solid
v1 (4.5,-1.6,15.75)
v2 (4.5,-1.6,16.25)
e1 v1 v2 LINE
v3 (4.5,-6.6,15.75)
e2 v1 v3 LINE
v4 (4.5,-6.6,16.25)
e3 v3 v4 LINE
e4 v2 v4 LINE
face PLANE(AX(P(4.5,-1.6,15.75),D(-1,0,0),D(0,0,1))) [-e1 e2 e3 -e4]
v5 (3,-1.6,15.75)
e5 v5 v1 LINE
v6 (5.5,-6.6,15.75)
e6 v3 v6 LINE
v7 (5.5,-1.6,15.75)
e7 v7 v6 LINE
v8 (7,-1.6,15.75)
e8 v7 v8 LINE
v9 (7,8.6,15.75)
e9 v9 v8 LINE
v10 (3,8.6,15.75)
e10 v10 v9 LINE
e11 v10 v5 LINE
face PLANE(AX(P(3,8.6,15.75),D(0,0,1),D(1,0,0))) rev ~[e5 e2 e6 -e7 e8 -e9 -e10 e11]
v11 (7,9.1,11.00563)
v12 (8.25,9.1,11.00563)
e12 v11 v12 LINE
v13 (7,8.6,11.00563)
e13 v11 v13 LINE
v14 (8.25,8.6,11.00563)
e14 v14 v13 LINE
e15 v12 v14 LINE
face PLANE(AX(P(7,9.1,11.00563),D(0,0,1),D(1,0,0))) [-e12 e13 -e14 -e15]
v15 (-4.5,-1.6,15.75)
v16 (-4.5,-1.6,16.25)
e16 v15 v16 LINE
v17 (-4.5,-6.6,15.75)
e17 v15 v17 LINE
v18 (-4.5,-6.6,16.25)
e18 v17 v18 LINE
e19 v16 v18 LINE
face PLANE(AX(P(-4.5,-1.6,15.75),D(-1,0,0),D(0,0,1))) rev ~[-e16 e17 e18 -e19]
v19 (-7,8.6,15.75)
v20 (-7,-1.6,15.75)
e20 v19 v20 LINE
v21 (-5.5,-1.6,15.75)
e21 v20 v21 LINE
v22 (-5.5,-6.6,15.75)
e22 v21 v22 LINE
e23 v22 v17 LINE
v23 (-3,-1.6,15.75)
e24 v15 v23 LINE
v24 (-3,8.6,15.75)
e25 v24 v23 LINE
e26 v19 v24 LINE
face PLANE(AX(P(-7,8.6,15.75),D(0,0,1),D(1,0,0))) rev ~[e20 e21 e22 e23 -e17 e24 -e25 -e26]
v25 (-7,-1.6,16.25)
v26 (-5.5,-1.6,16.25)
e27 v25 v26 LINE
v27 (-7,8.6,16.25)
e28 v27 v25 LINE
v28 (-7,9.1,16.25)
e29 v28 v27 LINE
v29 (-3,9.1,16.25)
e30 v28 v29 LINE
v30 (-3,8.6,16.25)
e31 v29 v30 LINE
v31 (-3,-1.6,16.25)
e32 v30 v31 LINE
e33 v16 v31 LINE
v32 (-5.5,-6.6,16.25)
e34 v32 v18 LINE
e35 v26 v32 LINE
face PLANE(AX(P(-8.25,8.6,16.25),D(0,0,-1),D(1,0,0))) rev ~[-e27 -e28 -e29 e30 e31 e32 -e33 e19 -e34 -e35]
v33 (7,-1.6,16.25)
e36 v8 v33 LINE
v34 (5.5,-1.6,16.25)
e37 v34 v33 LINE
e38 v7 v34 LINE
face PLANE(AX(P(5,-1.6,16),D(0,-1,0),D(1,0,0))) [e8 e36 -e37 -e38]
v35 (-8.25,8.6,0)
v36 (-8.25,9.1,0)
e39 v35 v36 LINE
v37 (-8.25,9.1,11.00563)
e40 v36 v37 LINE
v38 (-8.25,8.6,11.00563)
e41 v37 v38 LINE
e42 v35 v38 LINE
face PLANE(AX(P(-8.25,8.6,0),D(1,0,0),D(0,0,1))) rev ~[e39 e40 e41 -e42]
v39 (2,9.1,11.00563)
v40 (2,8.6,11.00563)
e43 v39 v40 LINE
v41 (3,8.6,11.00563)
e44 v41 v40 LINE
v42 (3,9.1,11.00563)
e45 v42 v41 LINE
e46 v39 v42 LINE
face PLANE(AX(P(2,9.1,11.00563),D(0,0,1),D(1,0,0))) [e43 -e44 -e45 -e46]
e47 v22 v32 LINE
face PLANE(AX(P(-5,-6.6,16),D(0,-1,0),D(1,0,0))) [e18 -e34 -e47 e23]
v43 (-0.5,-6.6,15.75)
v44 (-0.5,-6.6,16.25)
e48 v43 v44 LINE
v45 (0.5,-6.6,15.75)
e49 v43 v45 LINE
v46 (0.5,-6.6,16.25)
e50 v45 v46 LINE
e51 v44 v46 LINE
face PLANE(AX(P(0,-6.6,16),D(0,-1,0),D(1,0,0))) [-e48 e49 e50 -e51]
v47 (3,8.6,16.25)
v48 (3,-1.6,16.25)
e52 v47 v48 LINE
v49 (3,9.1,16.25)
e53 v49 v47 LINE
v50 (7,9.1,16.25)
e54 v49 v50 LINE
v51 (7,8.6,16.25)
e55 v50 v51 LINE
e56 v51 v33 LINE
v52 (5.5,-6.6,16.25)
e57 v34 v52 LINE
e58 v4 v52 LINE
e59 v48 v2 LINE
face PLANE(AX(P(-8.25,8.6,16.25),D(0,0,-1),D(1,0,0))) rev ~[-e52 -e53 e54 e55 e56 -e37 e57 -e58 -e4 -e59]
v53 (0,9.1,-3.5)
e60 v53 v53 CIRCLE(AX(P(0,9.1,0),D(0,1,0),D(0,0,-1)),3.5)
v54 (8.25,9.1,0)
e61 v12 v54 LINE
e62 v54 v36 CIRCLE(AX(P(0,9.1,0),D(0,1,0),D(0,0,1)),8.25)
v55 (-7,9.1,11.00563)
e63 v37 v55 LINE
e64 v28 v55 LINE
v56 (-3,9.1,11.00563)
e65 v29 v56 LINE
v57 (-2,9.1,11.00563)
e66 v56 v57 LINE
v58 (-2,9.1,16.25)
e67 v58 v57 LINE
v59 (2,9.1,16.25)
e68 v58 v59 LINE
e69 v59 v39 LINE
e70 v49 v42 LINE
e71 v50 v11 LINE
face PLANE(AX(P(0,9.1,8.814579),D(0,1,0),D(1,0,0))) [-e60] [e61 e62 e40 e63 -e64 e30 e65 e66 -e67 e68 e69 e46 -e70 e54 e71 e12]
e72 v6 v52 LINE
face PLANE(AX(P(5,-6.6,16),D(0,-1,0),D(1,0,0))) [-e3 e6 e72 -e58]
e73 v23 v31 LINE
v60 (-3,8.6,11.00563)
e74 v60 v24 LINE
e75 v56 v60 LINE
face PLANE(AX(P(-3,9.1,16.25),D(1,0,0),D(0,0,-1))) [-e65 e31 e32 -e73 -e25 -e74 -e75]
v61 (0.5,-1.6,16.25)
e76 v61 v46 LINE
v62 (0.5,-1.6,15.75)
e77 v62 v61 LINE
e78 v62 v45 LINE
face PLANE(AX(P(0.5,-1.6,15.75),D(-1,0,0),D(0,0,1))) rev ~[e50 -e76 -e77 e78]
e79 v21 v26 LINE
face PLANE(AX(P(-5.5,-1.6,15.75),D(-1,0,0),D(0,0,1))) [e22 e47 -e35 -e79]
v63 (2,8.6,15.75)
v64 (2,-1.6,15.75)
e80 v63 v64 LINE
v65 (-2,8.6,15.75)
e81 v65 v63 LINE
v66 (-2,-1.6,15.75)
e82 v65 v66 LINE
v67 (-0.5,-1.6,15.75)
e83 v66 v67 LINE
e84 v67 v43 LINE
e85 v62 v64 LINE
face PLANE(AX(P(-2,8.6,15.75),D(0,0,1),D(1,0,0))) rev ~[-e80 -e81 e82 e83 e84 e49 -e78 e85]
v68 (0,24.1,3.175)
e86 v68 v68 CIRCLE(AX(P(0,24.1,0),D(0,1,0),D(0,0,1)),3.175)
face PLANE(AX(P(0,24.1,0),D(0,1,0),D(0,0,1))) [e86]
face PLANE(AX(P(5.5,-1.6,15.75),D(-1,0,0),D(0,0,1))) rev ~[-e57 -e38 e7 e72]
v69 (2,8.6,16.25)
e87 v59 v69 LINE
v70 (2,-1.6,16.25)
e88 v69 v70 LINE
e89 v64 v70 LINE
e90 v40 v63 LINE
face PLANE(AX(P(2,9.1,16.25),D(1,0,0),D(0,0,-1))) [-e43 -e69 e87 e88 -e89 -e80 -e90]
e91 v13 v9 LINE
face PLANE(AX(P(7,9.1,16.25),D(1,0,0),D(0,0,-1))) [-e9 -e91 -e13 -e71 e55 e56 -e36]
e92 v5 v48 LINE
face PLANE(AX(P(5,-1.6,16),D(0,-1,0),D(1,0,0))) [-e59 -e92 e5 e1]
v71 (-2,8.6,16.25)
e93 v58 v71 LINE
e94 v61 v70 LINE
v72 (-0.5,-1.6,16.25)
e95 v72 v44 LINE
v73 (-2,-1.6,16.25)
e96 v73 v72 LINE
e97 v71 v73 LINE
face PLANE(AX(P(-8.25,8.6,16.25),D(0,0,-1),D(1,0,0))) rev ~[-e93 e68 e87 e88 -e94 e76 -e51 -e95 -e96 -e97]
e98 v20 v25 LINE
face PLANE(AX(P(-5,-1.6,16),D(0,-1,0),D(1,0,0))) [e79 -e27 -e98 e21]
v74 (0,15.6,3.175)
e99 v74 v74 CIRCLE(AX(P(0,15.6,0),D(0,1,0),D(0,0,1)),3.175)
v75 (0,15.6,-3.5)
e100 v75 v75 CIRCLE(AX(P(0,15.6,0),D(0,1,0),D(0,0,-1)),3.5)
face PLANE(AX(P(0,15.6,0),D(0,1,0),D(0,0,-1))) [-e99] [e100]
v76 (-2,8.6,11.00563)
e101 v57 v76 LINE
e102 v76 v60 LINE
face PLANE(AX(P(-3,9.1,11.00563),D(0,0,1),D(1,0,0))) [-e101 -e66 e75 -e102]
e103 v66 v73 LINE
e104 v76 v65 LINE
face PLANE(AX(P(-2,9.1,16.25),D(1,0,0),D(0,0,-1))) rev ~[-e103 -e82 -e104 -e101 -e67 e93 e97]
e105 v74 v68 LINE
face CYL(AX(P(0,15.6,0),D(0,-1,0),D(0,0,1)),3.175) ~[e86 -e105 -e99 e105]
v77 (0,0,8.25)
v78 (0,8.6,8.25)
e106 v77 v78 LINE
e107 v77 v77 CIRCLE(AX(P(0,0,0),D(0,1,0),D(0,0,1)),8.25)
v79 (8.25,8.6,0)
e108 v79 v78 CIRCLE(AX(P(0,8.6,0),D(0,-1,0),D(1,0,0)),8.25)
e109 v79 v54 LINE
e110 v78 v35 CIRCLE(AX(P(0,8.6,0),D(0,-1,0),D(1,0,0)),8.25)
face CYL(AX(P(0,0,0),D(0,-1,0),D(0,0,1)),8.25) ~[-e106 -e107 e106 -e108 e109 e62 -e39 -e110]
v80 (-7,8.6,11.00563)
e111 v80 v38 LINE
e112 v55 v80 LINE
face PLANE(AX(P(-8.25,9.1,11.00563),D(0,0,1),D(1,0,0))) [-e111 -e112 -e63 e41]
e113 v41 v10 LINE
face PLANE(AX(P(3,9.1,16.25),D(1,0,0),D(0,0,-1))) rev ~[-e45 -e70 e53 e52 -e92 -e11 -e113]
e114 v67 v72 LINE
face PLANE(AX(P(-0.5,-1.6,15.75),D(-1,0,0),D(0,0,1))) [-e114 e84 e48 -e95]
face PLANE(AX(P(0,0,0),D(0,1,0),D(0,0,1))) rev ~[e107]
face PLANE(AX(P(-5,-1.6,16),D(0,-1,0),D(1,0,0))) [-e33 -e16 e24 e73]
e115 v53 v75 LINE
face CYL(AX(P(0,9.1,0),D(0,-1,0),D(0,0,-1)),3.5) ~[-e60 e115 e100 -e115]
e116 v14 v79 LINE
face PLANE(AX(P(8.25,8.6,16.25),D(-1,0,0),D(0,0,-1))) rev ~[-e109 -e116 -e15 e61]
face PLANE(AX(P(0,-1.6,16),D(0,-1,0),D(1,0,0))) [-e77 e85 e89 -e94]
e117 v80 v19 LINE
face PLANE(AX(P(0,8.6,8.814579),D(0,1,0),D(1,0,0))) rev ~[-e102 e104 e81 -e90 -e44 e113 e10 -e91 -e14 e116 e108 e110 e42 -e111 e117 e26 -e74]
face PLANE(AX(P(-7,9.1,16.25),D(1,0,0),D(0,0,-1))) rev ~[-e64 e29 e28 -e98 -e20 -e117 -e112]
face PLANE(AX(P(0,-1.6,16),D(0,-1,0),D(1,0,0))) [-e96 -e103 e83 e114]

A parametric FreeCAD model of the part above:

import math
import FreeCAD as App
import Part
import Sketcher

doc = App.newDocument("Part")
params = doc.addObject("Spreadsheet::Sheet", "Params")
for row, (alias, value) in enumerate([
    ("sketch1_diameter", "16.5 mm"),
    ("pad1_length", "9.1 mm"),
    ("sketch2_diameter", "7 mm"),
    ("pad2_length", "6.5 mm"),
    ("sketch3_diameter", "6.35 mm"),
    ("pad3_length", "8.5 mm"),
    ("sketch4_radius", "8.25 mm"),
    ("sketch4_height", "16.25 mm"),
    ("pad4_length", "0.5 mm"),
    ("sketch5_width", "4 mm"),
    ("sketch5_height", "0.5 mm"),
    ("pad5_length", "10.2 mm"),
    ("sketch6_width", "1 mm"),
    ("sketch6_height", "0.5 mm"),
    ("pad6_length", "5 mm"),
    ("sketch7_width", "1.25 mm"),
    ("sketch8_width", "1.25 mm"),
    ("sketch9_width", "1 mm"),
    ("sketch10_width", "1 mm"),
], start=1):
    params.set(f"A{row}", alias)
    params.set(f"B{row}", "=" + value)
    params.setAlias(f"B{row}", alias)

body = doc.addObject("PartDesign::Body", "Body")

sketch1 = doc.addObject("Sketcher::SketchObject", "Sketch")
body.addObject(sketch1)
sketch1.AttachmentSupport = (doc.XZ_Plane, [""])
sketch1.MapMode = "FlatFace"
sketch1.addGeometry(Part.Circle(App.Vector(0, 0, 0), App.Vector(0, 0, 1), 8.25), False)
sketch1.addConstraint([
    Sketcher.Constraint("Coincident", 0, 3, -1, 1),
    Sketcher.Constraint("Diameter", 0, 16.5),
])
sketch1.setExpression("Constraints[1]", "Params.sketch1_diameter")
pad1 = doc.addObject("PartDesign::Pad", "Pad")
body.addObject(pad1)
pad1.Profile = sketch1
pad1.setExpression("Length", "Params.pad1_length")
pad1.Reversed = True

sketch2 = doc.addObject("Sketcher::SketchObject", "Sketch001")
body.addObject(sketch2)
sketch2.AttachmentSupport = (doc.XZ_Plane, [""])
sketch2.MapMode = "FlatFace"
sketch2.AttachmentOffset = App.Placement(App.Vector(0, 0, -9.1), App.Rotation())
sketch2.addGeometry(Part.Circle(App.Vector(0, 0, 0), App.Vector(0, 0, 1), 3.5), False)
sketch2.addConstraint([
    Sketcher.Constraint("Coincident", 0, 3, -1, 1),
    Sketcher.Constraint("Diameter", 0, 7.0),
])
sketch2.setExpression("Constraints[1]", "Params.sketch2_diameter")
pad2 = doc.addObject("PartDesign::Pad", "Pad001")
body.addObject(pad2)
pad2.Profile = sketch2
pad2.setExpression("Length", "Params.pad2_length")
pad2.Reversed = True

sketch3 = doc.addObject("Sketcher::SketchObject", "Sketch002")
body.addObject(sketch3)
sketch3.AttachmentSupport = (doc.XZ_Plane, [""])
sketch3.MapMode = "FlatFace"
sketch3.AttachmentOffset = App.Placement(App.Vector(0, 0, -15.6), App.Rotation())
sketch3.addGeometry(Part.Circle(App.Vector(0, 0, 0), App.Vector(0, 0, 1), 3.175), False)
sketch3.addConstraint([
    Sketcher.Constraint("Coincident", 0, 3, -1, 1),
    Sketcher.Constraint("Diameter", 0, 6.35),
])
sketch3.setExpression("Constraints[1]", "Params.sketch3_diameter")
pad3 = doc.addObject("PartDesign::Pad", "Pad002")
body.addObject(pad3)
pad3.Profile = sketch3
pad3.setExpression("Length", "Params.pad3_length")
pad3.Reversed = True

sketch4 = doc.addObject("Sketcher::SketchObject", "Sketch003")
body.addObject(sketch4)
sketch4.AttachmentSupport = (doc.XZ_Plane, [""])
sketch4.MapMode = "FlatFace"
sketch4.AttachmentOffset = App.Placement(App.Vector(0, 0, -8.6), App.Rotation())
sketch4.addGeometry([
    Part.LineSegment(App.Vector(-8.25, 0, 0), App.Vector(-8.25, 16.25, 0)),
    Part.LineSegment(App.Vector(-8.25, 16.25, 0), App.Vector(8.25, 16.25, 0)),
    Part.LineSegment(App.Vector(8.25, 16.25, 0), App.Vector(8.25, 0, 0)),
    Part.ArcOfCircle(Part.Circle(App.Vector(0, 0, 0), App.Vector(0, 0, 1), 8.25), math.radians(0), math.radians(180)),
], False)
sketch4.addConstraint([
    Sketcher.Constraint("Coincident", 0, 2, 1, 1),
    Sketcher.Constraint("Coincident", 1, 2, 2, 1),
    Sketcher.Constraint("Tangent", 2, 2, 3, 1),
    Sketcher.Constraint("Tangent", 3, 2, 0, 1),
    Sketcher.Constraint("Vertical", 0),
    Sketcher.Constraint("Horizontal", 1),
    Sketcher.Constraint("Vertical", 2),
    Sketcher.Constraint("Coincident", 3, 3, -1, 1),
    Sketcher.Constraint("Radius", 3, 8.25),
    Sketcher.Constraint("DistanceY", 0, 1, 0, 2, 16.25),
])
sketch4.setExpression("Constraints[8]", "Params.sketch4_radius")
sketch4.setExpression("Constraints[9]", "Params.sketch4_height")
pad4 = doc.addObject("PartDesign::Pad", "Pad003")
body.addObject(pad4)
pad4.Profile = sketch4
pad4.setExpression("Length", "Params.pad4_length")
pad4.Reversed = True

sketch5 = doc.addObject("Sketcher::SketchObject", "Sketch004")
body.addObject(sketch5)
sketch5.AttachmentSupport = (doc.XZ_Plane, [""])
sketch5.MapMode = "FlatFace"
sketch5.AttachmentOffset = App.Placement(App.Vector(0, 0, -8.6), App.Rotation())
sketch5.addGeometry([
    Part.LineSegment(App.Vector(-2, 16.25, 0), App.Vector(-2, 15.75, 0)),
    Part.LineSegment(App.Vector(-2, 15.75, 0), App.Vector(2, 15.75, 0)),
    Part.LineSegment(App.Vector(2, 15.75, 0), App.Vector(2, 16.25, 0)),
    Part.LineSegment(App.Vector(2, 16.25, 0), App.Vector(-2, 16.25, 0)),
    Part.LineSegment(App.Vector(-7, 16.25, 0), App.Vector(-7, 15.75, 0)),
    Part.LineSegment(App.Vector(-7, 15.75, 0), App.Vector(-3, 15.75, 0)),
    Part.LineSegment(App.Vector(-3, 15.75, 0), App.Vector(-3, 16.25, 0)),
    Part.LineSegment(App.Vector(-3, 16.25, 0), App.Vector(-7, 16.25, 0)),
    Part.LineSegment(App.Vector(3, 16.25, 0), App.Vector(3, 15.75, 0)),
    Part.LineSegment(App.Vector(3, 15.75, 0), App.Vector(7, 15.75, 0)),
    Part.LineSegment(App.Vector(7, 15.75, 0), App.Vector(7, 16.25, 0)),
    Part.LineSegment(App.Vector(7, 16.25, 0), App.Vector(3, 16.25, 0)),
], False)
sketch5.addConstraint([
    Sketcher.Constraint("Coincident", 0, 2, 1, 1),
    Sketcher.Constraint("Coincident", 1, 2, 2, 1),
    Sketcher.Constraint("Coincident", 2, 2, 3, 1),
    Sketcher.Constraint("Coincident", 3, 2, 0, 1),
    Sketcher.Constraint("Coincident", 4, 2, 5, 1),
    Sketcher.Constraint("Coincident", 5, 2, 6, 1),
    Sketcher.Constraint("Coincident", 6, 2, 7, 1),
    Sketcher.Constraint("Coincident", 7, 2, 4, 1),
    Sketcher.Constraint("Coincident", 8, 2, 9, 1),
    Sketcher.Constraint("Coincident", 9, 2, 10, 1),
    Sketcher.Constraint("Coincident", 10, 2, 11, 1),
    Sketcher.Constraint("Coincident", 11, 2, 8, 1),
    Sketcher.Constraint("Vertical", 0),
    Sketcher.Constraint("Horizontal", 1),
    Sketcher.Constraint("Vertical", 2),
    Sketcher.Constraint("Horizontal", 3),
    Sketcher.Constraint("Vertical", 4),
    Sketcher.Constraint("Horizontal", 5),
    Sketcher.Constraint("Vertical", 6),
    Sketcher.Constraint("Horizontal", 7),
    Sketcher.Constraint("Vertical", 8),
    Sketcher.Constraint("Horizontal", 9),
    Sketcher.Constraint("Vertical", 10),
    Sketcher.Constraint("Horizontal", 11),
    Sketcher.Constraint("Symmetric", 5, 2, 8, 2, -2),
    Sketcher.Constraint("Symmetric", 7, 2, 10, 2, -2),
    Sketcher.Constraint("Horizontal", 1, 2, 4, 2),
    Sketcher.Constraint("Horizontal", 3, 2, 6, 2),
    Sketcher.Constraint("Equal", 3, 5),
    Sketcher.Constraint("DistanceX", 1, 1, 1, 2, 4.0),
    Sketcher.Constraint("DistanceY", 0, 2, 0, 1, 0.5),
    Sketcher.Constraint("DistanceX", 0, 2, -1, 1, 2.0),
    Sketcher.Constraint("DistanceX", 4, 2, -1, 1, 7.0),
    Sketcher.Constraint("DistanceY", -1, 1, 0, 2, 15.75),
])
sketch5.setExpression("Constraints[29]", "Params.sketch5_width")
sketch5.setExpression("Constraints[30]", "Params.sketch5_height")
pad5 = doc.addObject("PartDesign::Pad", "Pad004")
body.addObject(pad5)
pad5.Profile = sketch5
pad5.setExpression("Length", "Params.pad5_length")

sketch6 = doc.addObject("Sketcher::SketchObject", "Sketch005")
body.addObject(sketch6)
sketch6.AttachmentSupport = (doc.XZ_Plane, [""])
sketch6.MapMode = "FlatFace"
sketch6.AttachmentOffset = App.Placement(App.Vector(0, 0, 1.6), App.Rotation())
sketch6.addGeometry([
    Part.LineSegment(App.Vector(4.5, 16.25, 0), App.Vector(4.5, 15.75, 0)),
    Part.LineSegment(App.Vector(4.5, 15.75, 0), App.Vector(5.5, 15.75, 0)),
    Part.LineSegment(App.Vector(5.5, 15.75, 0), App.Vector(5.5, 16.25, 0)),
    Part.LineSegment(App.Vector(5.5, 16.25, 0), App.Vector(4.5, 16.25, 0)),
    Part.LineSegment(App.Vector(-0.5, 16.25, 0), App.Vector(-0.5, 15.75, 0)),
    Part.LineSegment(App.Vector(-0.5, 15.75, 0), App.Vector(0.5, 15.75, 0)),
    Part.LineSegment(App.Vector(0.5, 15.75, 0), App.Vector(0.5, 16.25, 0)),
    Part.LineSegment(App.Vector(0.5, 16.25, 0), App.Vector(-0.5, 16.25, 0)),
    Part.LineSegment(App.Vector(-5.5, 16.25, 0), App.Vector(-5.5, 15.75, 0)),
    Part.LineSegment(App.Vector(-5.5, 15.75, 0), App.Vector(-4.5, 15.75, 0)),
    Part.LineSegment(App.Vector(-4.5, 15.75, 0), App.Vector(-4.5, 16.25, 0)),
    Part.LineSegment(App.Vector(-4.5, 16.25, 0), App.Vector(-5.5, 16.25, 0)),
], False)
sketch6.addConstraint([
    Sketcher.Constraint("Coincident", 0, 2, 1, 1),
    Sketcher.Constraint("Coincident", 1, 2, 2, 1),
    Sketcher.Constraint("Coincident", 2, 2, 3, 1),
    Sketcher.Constraint("Coincident", 3, 2, 0, 1),
    Sketcher.Constraint("Coincident", 4, 2, 5, 1),
    Sketcher.Constraint("Coincident", 5, 2, 6, 1),
    Sketcher.Constraint("Coincident", 6, 2, 7, 1),
    Sketcher.Constraint("Coincident", 7, 2, 4, 1),
    Sketcher.Constraint("Coincident", 8, 2, 9, 1),
    Sketcher.Constraint("Coincident", 9, 2, 10, 1),
    Sketcher.Constraint("Coincident", 10, 2, 11, 1),
    Sketcher.Constraint("Coincident", 11, 2, 8, 1),
    Sketcher.Constraint("Vertical", 0),
    Sketcher.Constraint("Horizontal", 1),
    Sketcher.Constraint("Vertical", 2),
    Sketcher.Constraint("Horizontal", 3),
    Sketcher.Constraint("Vertical", 4),
    Sketcher.Constraint("Horizontal", 5),
    Sketcher.Constraint("Vertical", 6),
    Sketcher.Constraint("Horizontal", 7),
    Sketcher.Constraint("Vertical", 8),
    Sketcher.Constraint("Horizontal", 9),
    Sketcher.Constraint("Vertical", 10),
    Sketcher.Constraint("Horizontal", 11),
    Sketcher.Constraint("Symmetric", 1, 2, 8, 2, -2),
    Sketcher.Constraint("Symmetric", 3, 2, 10, 2, -2),
    Sketcher.Constraint("Horizontal", 1, 2, 4, 2),
    Sketcher.Constraint("Horizontal", 3, 2, 6, 2),
    Sketcher.Constraint("Equal", 3, 5),
    Sketcher.Constraint("DistanceX", 1, 1, 1, 2, 1.0),
    Sketcher.Constraint("DistanceY", 0, 2, 0, 1, 0.5),
    Sketcher.Constraint("DistanceX", 4, 2, 0, 2, 5.0),
    Sketcher.Constraint("DistanceX", 8, 2, 4, 2, 5.0),
    Sketcher.Constraint("DistanceY", -1, 1, 0, 2, 15.75),
])
sketch6.setExpression("Constraints[29]", "Params.sketch6_width")
sketch6.setExpression("Constraints[30]", "Params.sketch6_height")
pad6 = doc.addObject("PartDesign::Pad", "Pad005")
body.addObject(pad6)
pad6.Profile = sketch6
pad6.setExpression("Length", "Params.pad6_length")

sketch7 = doc.addObject("Sketcher::SketchObject", "Sketch006")
body.addObject(sketch7)
sketch7.AttachmentSupport = (doc.XZ_Plane, [""])
sketch7.MapMode = "FlatFace"
sketch7.AttachmentOffset = App.Placement(App.Vector(0, 0, -9.1), App.Rotation())
sketch7.addGeometry([
    Part.LineSegment(App.Vector(-8.25, 11.00563, 0), App.Vector(-8.25, 16.25, 0)),
    Part.LineSegment(App.Vector(-8.25, 16.25, 0), App.Vector(-7, 16.25, 0)),
    Part.LineSegment(App.Vector(-7, 16.25, 0), App.Vector(-7, 11.00563, 0)),
    Part.LineSegment(App.Vector(-7, 11.00563, 0), App.Vector(-8.25, 11.00563, 0)),
], False)
sketch7.addConstraint([
    Sketcher.Constraint("Coincident", 0, 2, 1, 1),
    Sketcher.Constraint("Coincident", 1, 2, 2, 1),
    Sketcher.Constraint("Coincident", 2, 2, 3, 1),
    Sketcher.Constraint("Coincident", 3, 2, 0, 1),
    Sketcher.Constraint("Vertical", 0),
    Sketcher.Constraint("Horizontal", 1),
    Sketcher.Constraint("Vertical", 2),
    Sketcher.Constraint("Horizontal", 3),
    Sketcher.Constraint("DistanceX", 1, 2, -1, 1, 7.0),
    Sketcher.Constraint("DistanceX", 1, 1, 1, 2, 1.25),
    Sketcher.Constraint("DistanceY", -1, 1, 0, 2, 16.25),
    Sketcher.Constraint("DistanceY", 0, 1, 0, 2, 5.24437),
])
sketch7.setExpression("Constraints[9]", "Params.sketch7_width")
pocket1 = doc.addObject("PartDesign::Pocket", "Pocket")
body.addObject(pocket1)
pocket1.Profile = sketch7
pocket1.Type = "UpToFirst"
pocket1.Reversed = True

sketch8 = doc.addObject("Sketcher::SketchObject", "Sketch007")
body.addObject(sketch8)
sketch8.AttachmentSupport = (doc.XZ_Plane, [""])
sketch8.MapMode = "FlatFace"
sketch8.AttachmentOffset = App.Placement(App.Vector(0, 0, -9.1), App.Rotation())
sketch8.addGeometry([
    Part.LineSegment(App.Vector(7, 11.00563, 0), App.Vector(7, 16.25, 0)),
    Part.LineSegment(App.Vector(7, 16.25, 0), App.Vector(8.25, 16.25, 0)),
    Part.LineSegment(App.Vector(8.25, 16.25, 0), App.Vector(8.25, 11.00563, 0)),
    Part.LineSegment(App.Vector(8.25, 11.00563, 0), App.Vector(7, 11.00563, 0)),
], False)
sketch8.addConstraint([
    Sketcher.Constraint("Coincident", 0, 2, 1, 1),
    Sketcher.Constraint("Coincident", 1, 2, 2, 1),
    Sketcher.Constraint("Coincident", 2, 2, 3, 1),
    Sketcher.Constraint("Coincident", 3, 2, 0, 1),
    Sketcher.Constraint("Vertical", 0),
    Sketcher.Constraint("Horizontal", 1),
    Sketcher.Constraint("Vertical", 2),
    Sketcher.Constraint("Horizontal", 3),
    Sketcher.Constraint("DistanceX", -1, 1, 0, 2, 7.0),
    Sketcher.Constraint("DistanceX", 1, 1, 1, 2, 1.25),
    Sketcher.Constraint("DistanceY", -1, 1, 0, 2, 16.25),
    Sketcher.Constraint("DistanceY", 0, 1, 0, 2, 5.24437),
])
sketch8.setExpression("Constraints[9]", "Params.sketch8_width")
pocket2 = doc.addObject("PartDesign::Pocket", "Pocket001")
body.addObject(pocket2)
pocket2.Profile = sketch8
pocket2.Type = "UpToFirst"
pocket2.Reversed = True

sketch9 = doc.addObject("Sketcher::SketchObject", "Sketch008")
body.addObject(sketch9)
sketch9.AttachmentSupport = (doc.XZ_Plane, [""])
sketch9.MapMode = "FlatFace"
sketch9.AttachmentOffset = App.Placement(App.Vector(0, 0, -9.1), App.Rotation())
sketch9.addGeometry([
    Part.LineSegment(App.Vector(2, 11.00563, 0), App.Vector(2, 16.25, 0)),
    Part.LineSegment(App.Vector(2, 16.25, 0), App.Vector(3, 16.25, 0)),
    Part.LineSegment(App.Vector(3, 16.25, 0), App.Vector(3, 11.00563, 0)),
    Part.LineSegment(App.Vector(3, 11.00563, 0), App.Vector(2, 11.00563, 0)),
], False)
sketch9.addConstraint([
    Sketcher.Constraint("Coincident", 0, 2, 1, 1),
    Sketcher.Constraint("Coincident", 1, 2, 2, 1),
    Sketcher.Constraint("Coincident", 2, 2, 3, 1),
    Sketcher.Constraint("Coincident", 3, 2, 0, 1),
    Sketcher.Constraint("Vertical", 0),
    Sketcher.Constraint("Horizontal", 1),
    Sketcher.Constraint("Vertical", 2),
    Sketcher.Constraint("Horizontal", 3),
    Sketcher.Constraint("DistanceX", 1, 1, 1, 2, 1.0),
    Sketcher.Constraint("DistanceX", -1, 1, 0, 2, 2.0),
    Sketcher.Constraint("DistanceY", -1, 1, 0, 2, 16.25),
    Sketcher.Constraint("DistanceY", 0, 1, 0, 2, 5.24437),
])
sketch9.setExpression("Constraints[8]", "Params.sketch9_width")
pocket3 = doc.addObject("PartDesign::Pocket", "Pocket002")
body.addObject(pocket3)
pocket3.Profile = sketch9
pocket3.Type = "UpToFirst"
pocket3.Reversed = True

sketch10 = doc.addObject("Sketcher::SketchObject", "Sketch009")
body.addObject(sketch10)
sketch10.AttachmentSupport = (doc.XZ_Plane, [""])
sketch10.MapMode = "FlatFace"
sketch10.AttachmentOffset = App.Placement(App.Vector(0, 0, -9.1), App.Rotation())
sketch10.addGeometry([
    Part.LineSegment(App.Vector(-3, 11.00563, 0), App.Vector(-3, 16.25, 0)),
    Part.LineSegment(App.Vector(-3, 16.25, 0), App.Vector(-2, 16.25, 0)),
    Part.LineSegment(App.Vector(-2, 16.25, 0), App.Vector(-2, 11.00563, 0)),
    Part.LineSegment(App.Vector(-2, 11.00563, 0), App.Vector(-3, 11.00563, 0)),
], False)
sketch10.addConstraint([
    Sketcher.Constraint("Coincident", 0, 2, 1, 1),
    Sketcher.Constraint("Coincident", 1, 2, 2, 1),
    Sketcher.Constraint("Coincident", 2, 2, 3, 1),
    Sketcher.Constraint("Coincident", 3, 2, 0, 1),
    Sketcher.Constraint("Vertical", 0),
    Sketcher.Constraint("Horizontal", 1),
    Sketcher.Constraint("Vertical", 2),
    Sketcher.Constraint("Horizontal", 3),
    Sketcher.Constraint("DistanceX", 1, 1, 1, 2, 1.0),
    Sketcher.Constraint("DistanceX", 0, 2, -1, 1, 3.0),
    Sketcher.Constraint("DistanceY", -1, 1, 0, 2, 16.25),
    Sketcher.Constraint("DistanceY", 0, 1, 0, 2, 5.24437),
])
sketch10.setExpression("Constraints[8]", "Params.sketch10_width")
pocket4 = doc.addObject("PartDesign::Pocket", "Pocket003")
body.addObject(pocket4)
pocket4.Profile = sketch10
pocket4.Type = "UpToFirst"
pocket4.Reversed = True

doc.recompute()
